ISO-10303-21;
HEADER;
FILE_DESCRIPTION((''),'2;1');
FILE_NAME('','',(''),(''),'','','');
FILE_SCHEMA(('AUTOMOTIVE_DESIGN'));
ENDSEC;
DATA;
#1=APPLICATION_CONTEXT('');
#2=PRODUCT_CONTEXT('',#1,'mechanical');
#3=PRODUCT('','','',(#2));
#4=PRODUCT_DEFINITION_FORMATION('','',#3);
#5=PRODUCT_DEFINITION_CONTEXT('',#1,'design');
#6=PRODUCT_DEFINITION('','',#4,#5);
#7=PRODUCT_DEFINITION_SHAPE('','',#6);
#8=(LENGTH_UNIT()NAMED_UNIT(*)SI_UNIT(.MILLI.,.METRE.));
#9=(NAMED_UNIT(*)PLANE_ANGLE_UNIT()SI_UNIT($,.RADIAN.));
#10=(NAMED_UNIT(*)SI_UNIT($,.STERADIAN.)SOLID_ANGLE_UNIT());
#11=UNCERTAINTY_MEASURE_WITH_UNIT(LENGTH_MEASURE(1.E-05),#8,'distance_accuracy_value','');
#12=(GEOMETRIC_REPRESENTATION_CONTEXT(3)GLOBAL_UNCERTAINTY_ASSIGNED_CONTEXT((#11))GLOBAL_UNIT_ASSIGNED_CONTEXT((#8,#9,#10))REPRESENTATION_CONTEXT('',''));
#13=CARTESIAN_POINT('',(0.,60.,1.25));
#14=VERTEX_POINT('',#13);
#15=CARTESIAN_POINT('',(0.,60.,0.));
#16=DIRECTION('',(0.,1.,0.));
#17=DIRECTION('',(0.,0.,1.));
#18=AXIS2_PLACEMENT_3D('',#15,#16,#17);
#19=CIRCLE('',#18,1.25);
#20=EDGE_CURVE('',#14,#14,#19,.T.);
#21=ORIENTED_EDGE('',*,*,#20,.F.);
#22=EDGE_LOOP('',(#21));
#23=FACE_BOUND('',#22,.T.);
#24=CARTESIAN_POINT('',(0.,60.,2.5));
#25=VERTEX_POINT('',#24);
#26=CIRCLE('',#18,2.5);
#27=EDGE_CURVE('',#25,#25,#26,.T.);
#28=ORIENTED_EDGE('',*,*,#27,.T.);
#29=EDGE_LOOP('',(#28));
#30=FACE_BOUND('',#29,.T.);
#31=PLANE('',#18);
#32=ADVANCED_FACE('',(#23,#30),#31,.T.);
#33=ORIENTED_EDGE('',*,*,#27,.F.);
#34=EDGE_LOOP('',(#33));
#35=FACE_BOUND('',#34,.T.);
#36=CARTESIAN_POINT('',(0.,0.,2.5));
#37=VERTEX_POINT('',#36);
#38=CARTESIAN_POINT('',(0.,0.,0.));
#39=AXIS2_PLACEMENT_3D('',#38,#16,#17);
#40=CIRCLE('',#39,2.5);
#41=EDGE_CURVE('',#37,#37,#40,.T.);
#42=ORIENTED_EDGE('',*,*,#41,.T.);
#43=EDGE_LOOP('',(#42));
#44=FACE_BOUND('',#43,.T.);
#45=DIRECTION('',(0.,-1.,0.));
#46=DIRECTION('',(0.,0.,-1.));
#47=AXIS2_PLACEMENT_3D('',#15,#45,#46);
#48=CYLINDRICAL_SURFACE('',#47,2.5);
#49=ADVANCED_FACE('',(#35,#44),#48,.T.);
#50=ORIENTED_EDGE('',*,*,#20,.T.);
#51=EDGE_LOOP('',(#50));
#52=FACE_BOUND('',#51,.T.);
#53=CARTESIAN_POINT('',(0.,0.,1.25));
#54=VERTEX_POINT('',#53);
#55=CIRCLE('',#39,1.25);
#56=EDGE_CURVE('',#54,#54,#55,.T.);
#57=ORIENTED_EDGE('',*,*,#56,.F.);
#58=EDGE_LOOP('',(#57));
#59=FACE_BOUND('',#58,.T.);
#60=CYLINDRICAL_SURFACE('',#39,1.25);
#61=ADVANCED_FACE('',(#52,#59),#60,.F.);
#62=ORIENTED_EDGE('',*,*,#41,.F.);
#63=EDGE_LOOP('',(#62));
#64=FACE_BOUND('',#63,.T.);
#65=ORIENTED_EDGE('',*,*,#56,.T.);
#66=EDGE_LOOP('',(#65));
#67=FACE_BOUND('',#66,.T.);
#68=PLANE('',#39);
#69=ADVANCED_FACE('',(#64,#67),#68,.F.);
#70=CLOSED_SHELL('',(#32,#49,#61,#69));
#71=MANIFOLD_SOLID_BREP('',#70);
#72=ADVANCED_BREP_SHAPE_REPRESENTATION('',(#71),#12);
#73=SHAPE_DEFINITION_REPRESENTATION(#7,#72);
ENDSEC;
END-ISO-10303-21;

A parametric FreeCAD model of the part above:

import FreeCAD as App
import Part
import Sketcher

doc = App.newDocument("Part")
body = doc.addObject("PartDesign::Body", "Body")

# Sketch on XZ plane
sketch1 = body.newObject("Sketcher::SketchObject", "Sketch")
sketch1.AttachmentSupport = (doc.getObject("XZ_Plane"), [""])
sketch1.MapMode = "FlatFace"
sketch1.addGeometry(Part.Circle(App.Vector(0, 0, 0), App.Vector(0, 0, 1), 2.5), False)
sketch1.addConstraint([
    Sketcher.Constraint("Coincident", 0, 3, -1, 1),
    Sketcher.Constraint("Diameter", 0, 5.0),
])
pad1 = body.newObject("PartDesign::Pad", "Pad")
pad1.Profile = sketch1
pad1.Length = 60
pad1.Reversed = True

# Sketch on XZ plane
sketch2 = body.newObject("Sketcher::SketchObject", "Sketch001")
sketch2.AttachmentSupport = (doc.getObject("XZ_Plane"), [""])
sketch2.MapMode = "FlatFace"
sketch2.AttachmentOffset = App.Placement(App.Vector(0, 0, -60), App.Rotation())
sketch2.addGeometry(Part.Circle(App.Vector(0, 0, 0), App.Vector(0, 0, 1), 1.25), False)
sketch2.addConstraint([
    Sketcher.Constraint("Coincident", 0, 3, -1, 1),
    Sketcher.Constraint("Diameter", 0, 2.5),
])
pocket1 = body.newObject("PartDesign::Pocket", "Pocket")
pocket1.Profile = sketch2
pocket1.Type = "ThroughAll"
pocket1.Reversed = True

doc.recompute()
